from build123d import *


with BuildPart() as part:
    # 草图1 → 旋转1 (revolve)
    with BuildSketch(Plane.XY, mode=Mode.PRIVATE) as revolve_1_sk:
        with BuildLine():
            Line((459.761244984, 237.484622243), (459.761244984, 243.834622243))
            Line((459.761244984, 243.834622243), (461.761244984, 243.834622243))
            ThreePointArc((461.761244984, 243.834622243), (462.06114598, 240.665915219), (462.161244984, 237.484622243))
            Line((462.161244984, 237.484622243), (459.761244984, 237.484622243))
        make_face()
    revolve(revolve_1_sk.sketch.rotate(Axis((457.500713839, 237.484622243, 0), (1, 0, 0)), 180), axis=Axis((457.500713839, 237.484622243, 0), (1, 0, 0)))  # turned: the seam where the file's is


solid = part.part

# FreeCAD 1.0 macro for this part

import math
import FreeCAD as App
import Part
import Sketcher

doc = App.newDocument("Part")
body = doc.addObject("PartDesign::Body", "Body")

sketch1 = doc.addObject("Sketcher::SketchObject", "Sketch")
body.addObject(sketch1)
sketch1.AttachmentSupport = (doc.XY_Plane, [""])
sketch1.MapMode = "FlatFace"
sketch1.addGeometry([
    Part.LineSegment(App.Vector(459.8, 243.8, 0), App.Vector(459.8, 237.5, 0)),
    Part.LineSegment(App.Vector(459.8, 237.5, 0), App.Vector(462.2, 237.5, 0)),
    Part.ArcOfCircle(Part.Circle(App.Vector(411.6, 237.5, 0), App.Vector(0, 0, 1), 50.6), math.radians(0), math.radians(7.21)),
    Part.LineSegment(App.Vector(461.8, 243.8, 0), App.Vector(459.8, 243.8, 0)),
], False)
sketch1.addGeometry(Part.LineSegment(App.Vector(411.6, 237.5, 0), App.Vector(462.2, 237.5, 0)), True)
sketch1.addConstraint([
    Sketcher.Constraint("Coincident", 0, 2, 1, 1),
    Sketcher.Constraint("Coincident", 1, 2, 2, 1),
    Sketcher.Constraint("Coincident", 2, 2, 3, 1),
    Sketcher.Constraint("Coincident", 3, 2, 0, 1),
    Sketcher.Constraint("Vertical", 0),
    Sketcher.Constraint("Horizontal", 1),
    Sketcher.Constraint("Horizontal", 3),
    Sketcher.Constraint("Horizontal", 4),
    Sketcher.Constraint("Coincident", 4, 1, 2, 3),
    Sketcher.Constraint("Coincident", 4, 2, 1, 2),
    Sketcher.Constraint("DistanceX", 3, 2, 3, 1, 2.0),
    Sketcher.Constraint("DistanceX", 1, 1, 1, 2, 2.4),
    Sketcher.Constraint("DistanceY", 0, 2, 0, 1, 6.35),
    Sketcher.Constraint("DistanceX", -1, 1, 2, 3, 411.55812),
    Sketcher.Constraint("DistanceY", -1, 1, 2, 3, 237.484622),
])
revolution = doc.addObject("PartDesign::Revolution", "Revolution")
body.addObject(revolution)
revolution.Profile = sketch1
revolution.ReferenceAxis = (sketch1, ["Axis0"])
revolution.Angle = 360

doc.recompute()
